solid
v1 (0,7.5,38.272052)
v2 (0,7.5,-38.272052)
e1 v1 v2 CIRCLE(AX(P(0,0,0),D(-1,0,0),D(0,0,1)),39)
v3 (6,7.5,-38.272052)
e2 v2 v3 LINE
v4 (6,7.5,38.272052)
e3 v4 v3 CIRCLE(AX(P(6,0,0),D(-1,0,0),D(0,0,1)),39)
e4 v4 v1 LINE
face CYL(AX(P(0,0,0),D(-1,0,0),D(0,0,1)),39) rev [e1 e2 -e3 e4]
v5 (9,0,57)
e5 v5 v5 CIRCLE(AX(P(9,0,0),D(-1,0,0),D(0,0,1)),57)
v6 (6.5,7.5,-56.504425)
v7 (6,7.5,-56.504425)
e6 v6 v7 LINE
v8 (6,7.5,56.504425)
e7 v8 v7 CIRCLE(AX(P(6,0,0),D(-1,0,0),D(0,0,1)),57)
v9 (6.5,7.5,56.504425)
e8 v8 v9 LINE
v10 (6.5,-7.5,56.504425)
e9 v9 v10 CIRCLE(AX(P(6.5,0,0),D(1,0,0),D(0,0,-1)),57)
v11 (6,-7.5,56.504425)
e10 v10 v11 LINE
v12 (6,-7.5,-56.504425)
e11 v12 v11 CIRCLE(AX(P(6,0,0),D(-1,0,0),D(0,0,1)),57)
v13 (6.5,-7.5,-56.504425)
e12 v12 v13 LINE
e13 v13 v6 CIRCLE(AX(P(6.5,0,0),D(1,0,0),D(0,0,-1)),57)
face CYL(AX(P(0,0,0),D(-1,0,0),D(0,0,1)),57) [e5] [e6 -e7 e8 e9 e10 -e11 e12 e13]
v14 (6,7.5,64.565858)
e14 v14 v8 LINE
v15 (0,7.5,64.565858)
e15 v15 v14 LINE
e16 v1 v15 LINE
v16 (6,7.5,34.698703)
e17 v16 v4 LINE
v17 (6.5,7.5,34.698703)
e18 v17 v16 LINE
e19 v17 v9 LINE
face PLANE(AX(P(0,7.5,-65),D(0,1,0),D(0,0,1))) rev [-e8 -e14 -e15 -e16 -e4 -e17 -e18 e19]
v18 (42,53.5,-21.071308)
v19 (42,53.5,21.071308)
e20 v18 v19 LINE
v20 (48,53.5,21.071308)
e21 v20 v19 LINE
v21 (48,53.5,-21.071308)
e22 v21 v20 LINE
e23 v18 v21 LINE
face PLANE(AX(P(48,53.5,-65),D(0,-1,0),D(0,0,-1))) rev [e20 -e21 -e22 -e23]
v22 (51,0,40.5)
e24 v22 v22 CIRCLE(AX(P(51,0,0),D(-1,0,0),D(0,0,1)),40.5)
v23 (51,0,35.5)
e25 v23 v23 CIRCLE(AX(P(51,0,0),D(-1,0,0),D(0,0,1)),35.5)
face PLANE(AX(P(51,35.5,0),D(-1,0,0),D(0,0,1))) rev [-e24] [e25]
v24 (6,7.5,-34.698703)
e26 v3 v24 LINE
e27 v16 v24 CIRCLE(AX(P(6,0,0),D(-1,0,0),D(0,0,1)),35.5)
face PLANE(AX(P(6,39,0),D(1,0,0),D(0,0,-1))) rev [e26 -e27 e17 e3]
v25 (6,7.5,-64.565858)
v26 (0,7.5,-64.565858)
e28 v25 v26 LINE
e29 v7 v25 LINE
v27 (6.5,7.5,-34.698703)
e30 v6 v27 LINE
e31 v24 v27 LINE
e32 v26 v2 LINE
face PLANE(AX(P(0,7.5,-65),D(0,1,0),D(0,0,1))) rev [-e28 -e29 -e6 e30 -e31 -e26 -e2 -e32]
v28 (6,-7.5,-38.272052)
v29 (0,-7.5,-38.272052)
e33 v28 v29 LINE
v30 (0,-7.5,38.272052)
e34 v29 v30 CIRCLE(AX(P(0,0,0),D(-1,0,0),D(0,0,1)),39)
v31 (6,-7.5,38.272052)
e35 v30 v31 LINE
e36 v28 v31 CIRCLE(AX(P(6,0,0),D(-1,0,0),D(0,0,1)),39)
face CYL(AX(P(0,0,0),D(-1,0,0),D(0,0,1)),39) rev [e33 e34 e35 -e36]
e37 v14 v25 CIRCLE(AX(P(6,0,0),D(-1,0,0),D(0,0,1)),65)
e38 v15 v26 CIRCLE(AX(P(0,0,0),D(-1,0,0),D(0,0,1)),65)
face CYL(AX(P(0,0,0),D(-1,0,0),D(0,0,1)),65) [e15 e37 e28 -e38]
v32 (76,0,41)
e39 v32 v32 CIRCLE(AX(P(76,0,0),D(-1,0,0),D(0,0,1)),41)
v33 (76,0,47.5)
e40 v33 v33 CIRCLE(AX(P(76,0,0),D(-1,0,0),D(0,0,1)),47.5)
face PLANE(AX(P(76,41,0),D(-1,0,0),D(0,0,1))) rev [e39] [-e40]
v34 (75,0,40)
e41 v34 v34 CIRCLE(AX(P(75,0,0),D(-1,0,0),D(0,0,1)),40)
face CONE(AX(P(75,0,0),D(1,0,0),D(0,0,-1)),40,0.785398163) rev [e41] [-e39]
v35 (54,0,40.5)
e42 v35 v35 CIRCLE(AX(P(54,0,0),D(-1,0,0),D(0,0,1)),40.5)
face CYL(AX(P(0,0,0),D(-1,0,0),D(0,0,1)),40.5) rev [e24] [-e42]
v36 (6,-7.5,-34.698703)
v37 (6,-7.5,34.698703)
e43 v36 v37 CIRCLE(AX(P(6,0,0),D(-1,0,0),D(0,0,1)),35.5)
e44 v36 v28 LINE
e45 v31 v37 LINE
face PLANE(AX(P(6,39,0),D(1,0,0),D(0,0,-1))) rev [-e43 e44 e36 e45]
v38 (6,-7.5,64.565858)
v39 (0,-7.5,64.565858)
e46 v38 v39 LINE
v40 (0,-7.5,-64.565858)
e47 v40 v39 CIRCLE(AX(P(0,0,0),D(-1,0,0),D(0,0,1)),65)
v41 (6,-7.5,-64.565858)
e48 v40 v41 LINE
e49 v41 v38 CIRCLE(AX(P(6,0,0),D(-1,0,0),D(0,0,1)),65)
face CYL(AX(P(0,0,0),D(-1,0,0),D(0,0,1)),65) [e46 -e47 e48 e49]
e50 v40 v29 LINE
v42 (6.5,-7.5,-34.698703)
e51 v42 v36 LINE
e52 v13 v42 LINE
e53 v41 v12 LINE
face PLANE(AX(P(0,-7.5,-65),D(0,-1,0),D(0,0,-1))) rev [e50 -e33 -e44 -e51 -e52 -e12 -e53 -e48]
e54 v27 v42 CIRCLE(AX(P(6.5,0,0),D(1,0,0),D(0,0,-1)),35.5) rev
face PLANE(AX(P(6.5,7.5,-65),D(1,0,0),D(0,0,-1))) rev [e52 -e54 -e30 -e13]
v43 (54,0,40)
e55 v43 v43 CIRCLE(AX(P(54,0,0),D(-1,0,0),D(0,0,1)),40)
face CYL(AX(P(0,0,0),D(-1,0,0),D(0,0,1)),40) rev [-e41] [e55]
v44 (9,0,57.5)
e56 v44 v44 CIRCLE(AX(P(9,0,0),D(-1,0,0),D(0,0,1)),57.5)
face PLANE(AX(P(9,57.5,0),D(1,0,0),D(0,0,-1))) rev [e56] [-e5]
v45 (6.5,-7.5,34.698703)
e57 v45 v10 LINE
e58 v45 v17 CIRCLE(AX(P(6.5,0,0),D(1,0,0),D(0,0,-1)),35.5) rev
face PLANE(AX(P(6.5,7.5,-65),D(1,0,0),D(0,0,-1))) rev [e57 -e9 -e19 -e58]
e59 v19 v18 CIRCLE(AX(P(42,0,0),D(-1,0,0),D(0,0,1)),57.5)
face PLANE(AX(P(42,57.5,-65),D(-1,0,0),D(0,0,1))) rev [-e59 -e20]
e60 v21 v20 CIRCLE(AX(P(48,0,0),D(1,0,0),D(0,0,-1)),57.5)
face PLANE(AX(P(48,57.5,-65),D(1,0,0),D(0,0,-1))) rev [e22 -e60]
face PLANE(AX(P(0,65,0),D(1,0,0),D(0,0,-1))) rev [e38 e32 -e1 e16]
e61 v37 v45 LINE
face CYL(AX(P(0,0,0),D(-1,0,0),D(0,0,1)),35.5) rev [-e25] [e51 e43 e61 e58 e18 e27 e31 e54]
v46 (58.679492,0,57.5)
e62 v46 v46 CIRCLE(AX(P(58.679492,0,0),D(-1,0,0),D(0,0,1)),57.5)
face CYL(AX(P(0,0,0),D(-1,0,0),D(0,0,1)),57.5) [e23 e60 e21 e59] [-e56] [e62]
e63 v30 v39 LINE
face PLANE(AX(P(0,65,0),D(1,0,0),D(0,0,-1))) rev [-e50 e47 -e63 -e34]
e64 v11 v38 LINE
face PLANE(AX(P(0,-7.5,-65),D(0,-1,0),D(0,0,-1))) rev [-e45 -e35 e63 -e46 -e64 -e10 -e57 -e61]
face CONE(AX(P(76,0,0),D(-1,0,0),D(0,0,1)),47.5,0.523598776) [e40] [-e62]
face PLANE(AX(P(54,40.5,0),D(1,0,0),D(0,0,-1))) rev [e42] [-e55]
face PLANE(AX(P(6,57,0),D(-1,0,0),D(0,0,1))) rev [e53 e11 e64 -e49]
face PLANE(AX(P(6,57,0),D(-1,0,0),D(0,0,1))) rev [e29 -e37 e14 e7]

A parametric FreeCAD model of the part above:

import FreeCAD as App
import Part
import Sketcher

V = App.Vector
Q = App.Units.Quantity

doc = App.newDocument("Part")
body = doc.addObject("PartDesign::Body", "Body")

# Sketch on XY plane
sketch1 = body.newObject("Sketcher::SketchObject", "Sketch")
sketch1.AttachmentSupport = (doc.getObject("XY_Plane"), [""])
sketch1.MapMode = "FlatFace"
sketch1.addGeometry([
    Part.LineSegment(V(0, 39, 0), V(6, 39, 0)),  # 0
    Part.LineSegment(V(6, 39, 0), V(6, 35.5, 0)),  # 1
    Part.LineSegment(V(6, 35.5, 0), V(51, 35.5, 0)),  # 2
    Part.LineSegment(V(51, 35.5, 0), V(51, 40.5, 0)),  # 3
    Part.LineSegment(V(51, 40.5, 0), V(54, 40.5, 0)),  # 4
    Part.LineSegment(V(54, 40.5, 0), V(54, 40, 0)),  # 5
    Part.LineSegment(V(54, 40, 0), V(75, 40, 0)),  # 6
    Part.LineSegment(V(75, 40, 0), V(76, 41, 0)),  # 7
    Part.LineSegment(V(76, 41, 0), V(76, 47.5, 0)),  # 8
    Part.LineSegment(V(76, 47.5, 0), V(58.7, 57.5, 0)),  # 9
    Part.LineSegment(V(58.7, 57.5, 0), V(9, 57.5, 0)),  # 10
    Part.LineSegment(V(9, 57.5, 0), V(9, 57, 0)),  # 11
    Part.LineSegment(V(9, 57, 0), V(6, 57, 0)),  # 12
    Part.LineSegment(V(6, 57, 0), V(6, 65, 0)),  # 13
    Part.LineSegment(V(6, 65, 0), V(0, 65, 0)),  # 14
    Part.LineSegment(V(0, 65, 0), V(0, 39, 0)),  # 15
], False)
sketch1.addConstraint([
    Sketcher.Constraint("Coincident", 0, 2, 1, 1),
    Sketcher.Constraint("Coincident", 1, 2, 2, 1),
    Sketcher.Constraint("Coincident", 2, 2, 3, 1),
    Sketcher.Constraint("Coincident", 3, 2, 4, 1),
    Sketcher.Constraint("Coincident", 4, 2, 5, 1),
    Sketcher.Constraint("Coincident", 5, 2, 6, 1),
    Sketcher.Constraint("Coincident", 6, 2, 7, 1),
    Sketcher.Constraint("Coincident", 7, 2, 8, 1),
    Sketcher.Constraint("Coincident", 8, 2, 9, 1),
    Sketcher.Constraint("Coincident", 9, 2, 10, 1),
    Sketcher.Constraint("Coincident", 10, 2, 11, 1),
    Sketcher.Constraint("Coincident", 11, 2, 12, 1),
    Sketcher.Constraint("Coincident", 12, 2, 13, 1),
    Sketcher.Constraint("Coincident", 13, 2, 14, 1),
    Sketcher.Constraint("Coincident", 14, 2, 15, 1),
    Sketcher.Constraint("Coincident", 15, 2, 0, 1),
    Sketcher.Constraint("Horizontal", 0),
    Sketcher.Constraint("Vertical", 1),
    Sketcher.Constraint("Horizontal", 2),
    Sketcher.Constraint("Vertical", 3),
    Sketcher.Constraint("Horizontal", 4),
    Sketcher.Constraint("Vertical", 5),
    Sketcher.Constraint("Horizontal", 6),
    Sketcher.Constraint("Vertical", 8),
    Sketcher.Constraint("Horizontal", 10),
    Sketcher.Constraint("Vertical", 11),
    Sketcher.Constraint("Horizontal", 12),
    Sketcher.Constraint("Vertical", 13),
    Sketcher.Constraint("Horizontal", 14),
    Sketcher.Constraint("Vertical", 15),
    Sketcher.Constraint("PointOnObject", 14, 2, -2),
    Sketcher.Constraint("Vertical", 1, 2, 12, 2),
    Sketcher.Constraint("Equal", 4, 12),
    Sketcher.Constraint("Equal", 5, 11),
    Sketcher.Constraint("DistanceX", 0, 1, 0, 2, Q("6 mm")),
    Sketcher.Constraint("DistanceX", 2, 1, 2, 2, Q("45 mm")),
    Sketcher.Constraint("DistanceX", 4, 1, 4, 2, Q("3 mm")),
    Sketcher.Constraint("DistanceX", 6, 1, 6, 2, Q("21 mm")),
    Sketcher.Constraint("DistanceY", 3, 1, 3, 2, Q("5 mm")),
    Sketcher.Constraint("DistanceY", 13, 1, 13, 2, Q("8 mm")),
    Sketcher.Constraint("DistanceY", 15, 2, 15, 1, Q("26 mm")),
    Sketcher.Constraint("Angle", 7, Q("45 deg")),
    Sketcher.Constraint("Angle", 9, Q("150 deg")),
    Sketcher.Constraint("Distance", 9, Q("20 mm")),
    Sketcher.Constraint("DistanceY", 1, 2, 1, 1, Q("3.5 mm")),
    Sketcher.Constraint("DistanceY", 5, 2, 5, 1, Q("0.5 mm")),
    Sketcher.Constraint("DistanceY", 8, 1, 8, 2, Q("6.5 mm")),
    Sketcher.Constraint("DistanceY", -1, 1, 0, 2, Q("39 mm")),
])
revolution = body.newObject("PartDesign::Revolution", "Revolution")
revolution.Profile = sketch1
revolution.ReferenceAxis = (sketch1, ["H_Axis"])
revolution.Angle = 360

# Sketch on XY plane
sketch2 = body.newObject("Sketcher::SketchObject", "Sketch001")
sketch2.AttachmentSupport = (doc.getObject("XY_Plane"), [""])
sketch2.MapMode = "FlatFace"
sketch2.addGeometry([
    Part.LineSegment(V(42, 57.5, 0), V(42, 53.5, 0)),  # 0
    Part.LineSegment(V(42, 53.5, 0), V(48, 53.5, 0)),  # 1
    Part.LineSegment(V(48, 53.5, 0), V(48, 57.5, 0)),  # 2
    Part.LineSegment(V(48, 57.5, 0), V(42, 57.5, 0)),  # 3
    Part.LineSegment(V(0, 7.5, 0), V(0, -7.5, 0)),  # 4
    Part.LineSegment(V(0, -7.5, 0), V(6.5, -7.5, 0)),  # 5
    Part.LineSegment(V(6.5, -7.5, 0), V(6.5, 7.5, 0)),  # 6
    Part.LineSegment(V(6.5, 7.5, 0), V(0, 7.5, 0)),  # 7
], False)
sketch2.addConstraint([
    Sketcher.Constraint("Coincident", 0, 2, 1, 1),
    Sketcher.Constraint("Coincident", 1, 2, 2, 1),
    Sketcher.Constraint("Coincident", 2, 2, 3, 1),
    Sketcher.Constraint("Coincident", 3, 2, 0, 1),
    Sketcher.Constraint("Coincident", 4, 2, 5, 1),
    Sketcher.Constraint("Coincident", 5, 2, 6, 1),
    Sketcher.Constraint("Coincident", 6, 2, 7, 1),
    Sketcher.Constraint("Coincident", 7, 2, 4, 1),
    Sketcher.Constraint("Vertical", 0),
    Sketcher.Constraint("Horizontal", 1),
    Sketcher.Constraint("Vertical", 2),
    Sketcher.Constraint("Horizontal", 3),
    Sketcher.Constraint("Vertical", 4),
    Sketcher.Constraint("Horizontal", 5),
    Sketcher.Constraint("Vertical", 6),
    Sketcher.Constraint("Horizontal", 7),
    Sketcher.Constraint("Symmetric", 4, 2, 7, 2, -1, 1),
    Sketcher.Constraint("DistanceX", 1, 1, 1, 2, Q("6 mm")),
    Sketcher.Constraint("DistanceY", 0, 2, 0, 1, Q("4 mm")),
    Sketcher.Constraint("DistanceY", 4, 2, 4, 1, Q("15 mm")),
    Sketcher.Constraint("DistanceX", 5, 1, 5, 2, Q("6.5 mm")),
    Sketcher.Constraint("DistanceX", -1, 1, 0, 2, Q("42 mm")),
    Sketcher.Constraint("DistanceY", 4, 2, 0, 2, Q("61 mm")),
])
pocket1 = body.newObject("PartDesign::Pocket", "Pocket")
pocket1.Profile = sketch2
pocket1.Type = "ThroughAll"
pocket1.Midplane = True

doc.recompute()
